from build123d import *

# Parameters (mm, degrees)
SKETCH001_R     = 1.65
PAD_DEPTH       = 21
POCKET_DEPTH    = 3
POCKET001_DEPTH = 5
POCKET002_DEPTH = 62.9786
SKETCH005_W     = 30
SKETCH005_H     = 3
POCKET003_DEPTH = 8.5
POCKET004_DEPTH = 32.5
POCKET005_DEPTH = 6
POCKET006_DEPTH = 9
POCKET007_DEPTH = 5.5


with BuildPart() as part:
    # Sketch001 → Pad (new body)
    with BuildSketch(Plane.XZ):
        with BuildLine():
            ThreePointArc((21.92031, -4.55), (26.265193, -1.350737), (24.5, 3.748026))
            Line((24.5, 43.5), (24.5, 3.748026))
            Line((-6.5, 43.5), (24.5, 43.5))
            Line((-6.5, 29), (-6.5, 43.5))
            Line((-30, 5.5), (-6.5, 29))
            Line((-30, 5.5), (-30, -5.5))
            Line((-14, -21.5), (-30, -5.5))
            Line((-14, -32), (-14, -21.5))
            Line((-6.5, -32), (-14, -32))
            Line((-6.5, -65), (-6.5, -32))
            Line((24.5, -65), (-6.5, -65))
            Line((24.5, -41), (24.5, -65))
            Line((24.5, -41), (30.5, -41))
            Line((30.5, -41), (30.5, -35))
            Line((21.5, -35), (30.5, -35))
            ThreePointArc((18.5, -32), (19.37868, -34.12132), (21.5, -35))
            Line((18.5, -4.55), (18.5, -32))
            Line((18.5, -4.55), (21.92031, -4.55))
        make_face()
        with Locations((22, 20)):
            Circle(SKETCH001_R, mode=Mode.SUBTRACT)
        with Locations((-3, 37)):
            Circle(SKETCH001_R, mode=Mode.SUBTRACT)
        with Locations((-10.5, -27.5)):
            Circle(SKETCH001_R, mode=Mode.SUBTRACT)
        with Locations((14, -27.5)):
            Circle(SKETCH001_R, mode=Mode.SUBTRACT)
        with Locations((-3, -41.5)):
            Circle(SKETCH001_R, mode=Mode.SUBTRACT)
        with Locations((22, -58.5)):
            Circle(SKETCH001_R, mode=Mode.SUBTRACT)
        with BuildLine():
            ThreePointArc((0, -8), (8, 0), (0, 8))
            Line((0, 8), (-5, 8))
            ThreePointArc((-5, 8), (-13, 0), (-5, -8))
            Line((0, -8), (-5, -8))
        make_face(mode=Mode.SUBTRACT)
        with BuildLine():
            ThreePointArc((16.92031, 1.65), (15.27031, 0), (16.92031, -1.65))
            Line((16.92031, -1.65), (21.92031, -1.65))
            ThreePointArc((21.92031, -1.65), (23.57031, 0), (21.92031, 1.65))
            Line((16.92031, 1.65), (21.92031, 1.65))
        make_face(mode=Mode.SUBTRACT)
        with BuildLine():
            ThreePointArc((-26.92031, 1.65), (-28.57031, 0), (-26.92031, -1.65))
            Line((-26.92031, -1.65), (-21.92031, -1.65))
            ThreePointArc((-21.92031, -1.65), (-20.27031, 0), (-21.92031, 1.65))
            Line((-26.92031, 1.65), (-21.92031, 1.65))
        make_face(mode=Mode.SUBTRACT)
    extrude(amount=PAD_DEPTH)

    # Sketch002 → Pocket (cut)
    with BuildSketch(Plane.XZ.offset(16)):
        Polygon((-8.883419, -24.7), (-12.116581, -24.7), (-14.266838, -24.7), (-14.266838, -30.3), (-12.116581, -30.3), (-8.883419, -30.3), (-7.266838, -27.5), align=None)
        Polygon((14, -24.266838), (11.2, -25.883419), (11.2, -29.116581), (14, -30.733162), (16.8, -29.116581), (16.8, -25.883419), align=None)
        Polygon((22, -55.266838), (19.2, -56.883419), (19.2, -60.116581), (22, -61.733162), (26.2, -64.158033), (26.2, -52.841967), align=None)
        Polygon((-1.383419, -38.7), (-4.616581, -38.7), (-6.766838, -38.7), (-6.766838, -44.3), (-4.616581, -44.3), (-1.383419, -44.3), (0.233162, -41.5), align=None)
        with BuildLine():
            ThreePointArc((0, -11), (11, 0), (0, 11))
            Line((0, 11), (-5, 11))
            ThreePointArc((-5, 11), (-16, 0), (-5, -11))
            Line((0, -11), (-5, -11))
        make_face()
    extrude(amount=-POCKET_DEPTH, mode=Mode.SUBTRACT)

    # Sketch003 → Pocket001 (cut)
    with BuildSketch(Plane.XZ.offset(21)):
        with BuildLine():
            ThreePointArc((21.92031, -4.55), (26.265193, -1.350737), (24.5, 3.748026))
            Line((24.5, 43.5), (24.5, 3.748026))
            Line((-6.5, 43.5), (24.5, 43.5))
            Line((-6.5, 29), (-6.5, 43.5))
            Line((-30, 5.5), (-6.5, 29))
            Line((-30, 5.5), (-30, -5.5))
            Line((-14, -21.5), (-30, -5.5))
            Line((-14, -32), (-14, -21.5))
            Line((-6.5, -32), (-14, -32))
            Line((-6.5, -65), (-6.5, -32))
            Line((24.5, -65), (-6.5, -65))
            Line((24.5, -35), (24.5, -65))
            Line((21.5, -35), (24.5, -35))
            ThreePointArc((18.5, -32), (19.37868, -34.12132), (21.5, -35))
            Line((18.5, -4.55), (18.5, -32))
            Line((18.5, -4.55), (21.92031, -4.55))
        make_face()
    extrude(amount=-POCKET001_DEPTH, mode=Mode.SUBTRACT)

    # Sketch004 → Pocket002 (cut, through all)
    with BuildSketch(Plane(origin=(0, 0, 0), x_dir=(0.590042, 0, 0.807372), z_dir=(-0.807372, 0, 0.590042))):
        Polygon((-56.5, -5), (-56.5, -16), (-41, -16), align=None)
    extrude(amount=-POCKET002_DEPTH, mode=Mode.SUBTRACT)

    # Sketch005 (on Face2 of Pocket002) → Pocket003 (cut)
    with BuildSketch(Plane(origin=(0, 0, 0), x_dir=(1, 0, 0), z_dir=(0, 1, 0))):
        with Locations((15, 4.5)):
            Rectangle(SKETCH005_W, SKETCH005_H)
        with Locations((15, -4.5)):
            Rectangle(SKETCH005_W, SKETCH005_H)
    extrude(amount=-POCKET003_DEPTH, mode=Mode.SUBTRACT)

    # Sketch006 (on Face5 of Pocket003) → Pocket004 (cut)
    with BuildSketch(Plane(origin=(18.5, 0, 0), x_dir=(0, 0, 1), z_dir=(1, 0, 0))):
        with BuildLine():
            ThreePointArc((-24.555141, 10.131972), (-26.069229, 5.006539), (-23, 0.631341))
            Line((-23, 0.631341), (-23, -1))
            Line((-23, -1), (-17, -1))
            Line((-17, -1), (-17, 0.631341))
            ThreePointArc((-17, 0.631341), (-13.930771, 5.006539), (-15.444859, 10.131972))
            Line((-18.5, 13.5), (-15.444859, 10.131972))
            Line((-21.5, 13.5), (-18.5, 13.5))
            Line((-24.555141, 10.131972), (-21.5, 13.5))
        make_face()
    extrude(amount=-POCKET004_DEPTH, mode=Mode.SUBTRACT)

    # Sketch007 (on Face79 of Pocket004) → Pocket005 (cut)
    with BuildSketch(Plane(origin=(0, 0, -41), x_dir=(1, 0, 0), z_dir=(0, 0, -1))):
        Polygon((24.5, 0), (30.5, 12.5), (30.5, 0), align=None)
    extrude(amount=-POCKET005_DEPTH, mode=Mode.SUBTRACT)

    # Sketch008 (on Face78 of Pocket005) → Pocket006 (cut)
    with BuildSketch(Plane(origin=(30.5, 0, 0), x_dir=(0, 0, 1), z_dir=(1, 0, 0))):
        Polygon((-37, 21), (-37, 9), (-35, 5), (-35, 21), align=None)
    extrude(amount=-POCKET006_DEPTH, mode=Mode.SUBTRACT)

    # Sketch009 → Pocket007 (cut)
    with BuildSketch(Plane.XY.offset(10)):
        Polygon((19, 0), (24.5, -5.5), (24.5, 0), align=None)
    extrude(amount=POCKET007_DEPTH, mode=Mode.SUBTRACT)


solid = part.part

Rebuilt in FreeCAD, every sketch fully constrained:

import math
import FreeCAD as App
import Part
import Sketcher
from FreeCAD import Vector
Q = App.Units.Quantity

doc = App.newDocument("Part")
params = doc.addObject("Spreadsheet::Sheet", "Params")
for row, (alias, value) in enumerate([
    ("sketch1_radius", "3.000001 mm"),
    ("sketch1_radius2", "8 mm"),
    ("sketch1_diameter", "3.3 mm"),
    ("sketch1_width", "31 mm"),
    ("sketch1_width2", "6 mm"),
    ("pad1_length", "21 mm"),
    ("sketch2_radius", "11 mm"),
    ("sketch2_width", "5 mm"),
    ("sketch2_height", "5.6 mm"),
    ("pocket1_length", "3 mm"),
    ("sketch3_radius", "3.000001 mm"),
    ("sketch3_width", "31 mm"),
    ("sketch3_width2", "3 mm"),
    ("sketch3_height", "11 mm"),
    ("sketch3_height2", "33 mm"),
    ("pocket2_length", "5 mm"),
    ("sketch4_height", "11 mm"),
    ("sketch4_width", "15.5 mm"),
    ("sketch5_width", "30 mm"),
    ("sketch5_height", "3 mm"),
    ("pocket4_length", "8.5 mm"),
    ("sketch6_height", "6 mm"),
    ("sketch6_height2", "3 mm"),
    ("sketch6_radius", "6.149999 mm"),
    ("pocket5_length", "32.5 mm"),
    ("sketch7_width", "6 mm"),
    ("sketch7_height", "12.5 mm"),
    ("pocket6_length", "6 mm"),
    ("sketch8_width", "12 mm"),
    ("sketch8_width2", "16 mm"),
    ("sketch8_height", "2 mm"),
    ("pocket7_length", "9 mm"),
    ("sketch9_width", "5.5 mm"),
    ("pocket8_length", "5.5 mm"),
], start=1):
    params.set(f"A{row}", alias)
    params.set(f"B{row}", "=" + value)
    params.setAlias(f"B{row}", alias)

body = doc.addObject("PartDesign::Body", "Body")

# Sketch on XZ plane
sketch1 = body.newObject("Sketcher::SketchObject", "Sketch")
sketch1.AttachmentSupport = (doc.getObject("XZ_Plane"), [""])
sketch1.MapMode = "FlatFace"
sketch1.addGeometry(Part.ArcOfCircle(Part.Circle(Vector(21.9, 0, 0), Vector(0, 0, 1), 4.6), math.radians(-90), math.radians(55)), False)
sketch1.addGeometry(Part.LineSegment(Vector(24.5, 3.7, 0), Vector(24.5, 43.5, 0)), False)
sketch1.addGeometry(Part.LineSegment(Vector(24.5, 43.5, 0), Vector(-6.5, 43.5, 0)), False)
sketch1.addGeometry(Part.LineSegment(Vector(-6.5, 43.5, 0), Vector(-6.5, 29, 0)), False)
sketch1.addGeometry(Part.LineSegment(Vector(-6.5, 29, 0), Vector(-30, 5.5, 0)), False)
sketch1.addGeometry(Part.LineSegment(Vector(-30, 5.5, 0), Vector(-30, -5.5, 0)), False)
sketch1.addGeometry(Part.LineSegment(Vector(-30, -5.5, 0), Vector(-14, -21.5, 0)), False)
sketch1.addGeometry(Part.LineSegment(Vector(-14, -21.5, 0), Vector(-14, -32, 0)), False)
sketch1.addGeometry(Part.LineSegment(Vector(-14, -32, 0), Vector(-6.5, -32, 0)), False)
sketch1.addGeometry(Part.LineSegment(Vector(-6.5, -32, 0), Vector(-6.5, -65, 0)), False)
sketch1.addGeometry(Part.LineSegment(Vector(-6.5, -65, 0), Vector(24.5, -65, 0)), False)
sketch1.addGeometry(Part.LineSegment(Vector(24.5, -65, 0), Vector(24.5, -41, 0)), False)
sketch1.addGeometry(Part.LineSegment(Vector(24.5, -41, 0), Vector(30.5, -41, 0)), False)
sketch1.addGeometry(Part.LineSegment(Vector(30.5, -41, 0), Vector(30.5, -35, 0)), False)
sketch1.addGeometry(Part.LineSegment(Vector(30.5, -35, 0), Vector(21.5, -35, 0)), False)
sketch1.addGeometry(Part.ArcOfCircle(Part.Circle(Vector(21.5, -32, 0), Vector(0, 0, 1), 3), math.radians(-180), math.radians(-90)), False)
sketch1.addGeometry(Part.LineSegment(Vector(18.5, -32, 0), Vector(18.5, -4.5, 0)), False)
sketch1.addGeometry(Part.LineSegment(Vector(18.5, -4.5, 0), Vector(21.9, -4.5, 0)), False)
sketch1.addGeometry(Part.Circle(Vector(-3, -41.5, 0), Vector(0, 0, 1), 1.6), False)
sketch1.addGeometry(Part.Circle(Vector(-10.5, -27.5, 0), Vector(0, 0, 1), 1.6), False)
sketch1.addGeometry(Part.Circle(Vector(22, -58.5, 0), Vector(0, 0, 1), 1.6), False)
sketch1.addGeometry(Part.Circle(Vector(14, -27.5, 0), Vector(0, 0, 1), 1.6), False)
sketch1.addGeometry(Part.ArcOfCircle(Part.Circle(Vector(-26.9, 0, 0), Vector(0, 0, 1), 1.6), math.radians(90), math.radians(270)), False)
sketch1.addGeometry(Part.LineSegment(Vector(-26.9, 1.6, 0), Vector(-21.9, 1.6, 0)), False)
sketch1.addGeometry(Part.ArcOfCircle(Part.Circle(Vector(-21.9, 0, 0), Vector(0, 0, 1), 1.6), math.radians(-90), math.radians(90)), False)
sketch1.addGeometry(Part.LineSegment(Vector(-21.9, -1.6, 0), Vector(-26.9, -1.6, 0)), False)
sketch1.addGeometry(Part.ArcOfCircle(Part.Circle(Vector(0, 0, 0), Vector(0, 0, 1), 8), math.radians(-90), math.radians(90)), False)
sketch1.addGeometry(Part.LineSegment(Vector(0, -8, 0), Vector(-5, -8, 0)), False)
sketch1.addGeometry(Part.ArcOfCircle(Part.Circle(Vector(-5, 0, 0), Vector(0, 0, 1), 8), math.radians(90), math.radians(270)), False)
sketch1.addGeometry(Part.LineSegment(Vector(-5, 8, 0), Vector(0, 8, 0)), False)
sketch1.addGeometry(Part.Circle(Vector(-3, 37, 0), Vector(0, 0, 1), 1.6), False)
sketch1.addGeometry(Part.ArcOfCircle(Part.Circle(Vector(16.9, 0, 0), Vector(0, 0, 1), 1.6), math.radians(90), math.radians(270)), False)
sketch1.addGeometry(Part.LineSegment(Vector(16.9, 1.6, 0), Vector(21.9, 1.6, 0)), False)
sketch1.addGeometry(Part.ArcOfCircle(Part.Circle(Vector(21.9, 0, 0), Vector(0, 0, 1), 1.6), math.radians(-90), math.radians(90)), False)
sketch1.addGeometry(Part.LineSegment(Vector(21.9, -1.6, 0), Vector(16.9, -1.6, 0)), False)
sketch1.addGeometry(Part.Circle(Vector(22, 20, 0), Vector(0, 0, 1), 1.6), False)
sketch1.addConstraint(Sketcher.Constraint("Coincident", 0, 2, 1, 1))
sketch1.addConstraint(Sketcher.Constraint("Coincident", 1, 2, 2, 1))
sketch1.addConstraint(Sketcher.Constraint("Coincident", 2, 2, 3, 1))
sketch1.addConstraint(Sketcher.Constraint("Coincident", 3, 2, 4, 1))
sketch1.addConstraint(Sketcher.Constraint("Coincident", 4, 2, 5, 1))
sketch1.addConstraint(Sketcher.Constraint("Coincident", 5, 2, 6, 1))
sketch1.addConstraint(Sketcher.Constraint("Coincident", 6, 2, 7, 1))
sketch1.addConstraint(Sketcher.Constraint("Coincident", 7, 2, 8, 1))
sketch1.addConstraint(Sketcher.Constraint("Coincident", 8, 2, 9, 1))
sketch1.addConstraint(Sketcher.Constraint("Coincident", 9, 2, 10, 1))
sketch1.addConstraint(Sketcher.Constraint("Coincident", 10, 2, 11, 1))
sketch1.addConstraint(Sketcher.Constraint("Coincident", 11, 2, 12, 1))
sketch1.addConstraint(Sketcher.Constraint("Coincident", 12, 2, 13, 1))
sketch1.addConstraint(Sketcher.Constraint("Coincident", 13, 2, 14, 1))
sketch1.addConstraint(Sketcher.Constraint("Tangent", 14, 2, 15, 2))
sketch1.addConstraint(Sketcher.Constraint("Tangent", 15, 1, 16, 1))
sketch1.addConstraint(Sketcher.Constraint("Coincident", 16, 2, 17, 1))
sketch1.addConstraint(Sketcher.Constraint("Tangent", 17, 2, 0, 1))
sketch1.addConstraint(Sketcher.Constraint("Tangent", 22, 1, 23, 1))
sketch1.addConstraint(Sketcher.Constraint("Tangent", 23, 2, 24, 2))
sketch1.addConstraint(Sketcher.Constraint("Tangent", 24, 1, 25, 1))
sketch1.addConstraint(Sketcher.Constraint("Tangent", 25, 2, 22, 2))
sketch1.addConstraint(Sketcher.Constraint("Tangent", 26, 1, 27, 1))
sketch1.addConstraint(Sketcher.Constraint("Tangent", 27, 2, 28, 2))
sketch1.addConstraint(Sketcher.Constraint("Tangent", 28, 1, 29, 1))
sketch1.addConstraint(Sketcher.Constraint("Tangent", 29, 2, 26, 2))
sketch1.addConstraint(Sketcher.Constraint("Tangent", 31, 1, 32, 1))
sketch1.addConstraint(Sketcher.Constraint("Tangent", 32, 2, 33, 2))
sketch1.addConstraint(Sketcher.Constraint("Tangent", 33, 1, 34, 1))
sketch1.addConstraint(Sketcher.Constraint("Tangent", 34, 2, 31, 2))
sketch1.addConstraint(Sketcher.Constraint("Vertical", 1))
sketch1.addConstraint(Sketcher.Constraint("Horizontal", 2))
sketch1.addConstraint(Sketcher.Constraint("Vertical", 3))
sketch1.addConstraint(Sketcher.Constraint("Vertical", 5))
sketch1.addConstraint(Sketcher.Constraint("Vertical", 7))
sketch1.addConstraint(Sketcher.Constraint("Horizontal", 8))
sketch1.addConstraint(Sketcher.Constraint("Vertical", 9))
sketch1.addConstraint(Sketcher.Constraint("Horizontal", 10))
sketch1.addConstraint(Sketcher.Constraint("Vertical", 11))
sketch1.addConstraint(Sketcher.Constraint("Horizontal", 12))
sketch1.addConstraint(Sketcher.Constraint("Vertical", 13))
sketch1.addConstraint(Sketcher.Constraint("Horizontal", 14))
sketch1.addConstraint(Sketcher.Constraint("Vertical", 16))
sketch1.addConstraint(Sketcher.Constraint("Horizontal", 17))
sketch1.addConstraint(Sketcher.Constraint("Horizontal", 23))
sketch1.addConstraint(Sketcher.Constraint("Horizontal", 25))
sketch1.addConstraint(Sketcher.Constraint("Horizontal", 27))
sketch1.addConstraint(Sketcher.Constraint("Horizontal", 29))
sketch1.addConstraint(Sketcher.Constraint("Horizontal", 32))
sketch1.addConstraint(Sketcher.Constraint("Horizontal", 34))
sketch1.addConstraint(Sketcher.Constraint("Coincident", 26, 3, -1, 1))
sketch1.addConstraint(Sketcher.Constraint("Coincident", 33, 3, 0, 3))
sketch1.addConstraint(Sketcher.Constraint("Equal", 18, 19))
sketch1.addConstraint(Sketcher.Constraint("Equal", 19, 20))
sketch1.addConstraint(Sketcher.Constraint("Equal", 20, 21))
sketch1.addConstraint(Sketcher.Constraint("Equal", 21, 22))
sketch1.addConstraint(Sketcher.Constraint("Equal", 24, 30))
sketch1.addConstraint(Sketcher.Constraint("Equal", 30, 31))
sketch1.addConstraint(Sketcher.Constraint("Equal", 33, 35))
sketch1.addConstraint(Sketcher.Constraint("Symmetric", 0, 3, 24, 3, -1, 1))
sketch1.addConstraint(Sketcher.Constraint("PointOnObject", 0, 3, -1))
sketch1.addConstraint(Sketcher.Constraint("Perpendicular", 4, 6))
sketch1.addConstraint(Sketcher.Constraint("Horizontal", 19, 3, 21, 3))
sketch1.addConstraint(Sketcher.Constraint("Horizontal", 15, 3, 7, 2))
sketch1.addConstraint(Sketcher.Constraint("Vertical", 18, 3, 30, 3))
sketch1.addConstraint(Sketcher.Constraint("Vertical", 20, 3, 35, 3))
sketch1.addConstraint(Sketcher.Constraint("Vertical", 3, 2, 8, 2))
sketch1.addConstraint(Sketcher.Constraint("Vertical", 1, 2, 10, 2))
sketch1.addConstraint(Sketcher.Constraint("Equal", 25, 27))
sketch1.addConstraint(Sketcher.Constraint("Equal", 29, 32))
sketch1.addConstraint(Sketcher.Constraint("Equal", 12, 13))
sketch1.addConstraint(Sketcher.Constraint("Radius", 15, Q("3.000001 mm")))
sketch1.addConstraint(Sketcher.Constraint("Radius", 26, Q("8 mm")))
sketch1.addConstraint(Sketcher.Constraint("Diameter", 18, Q("3.3 mm")))
sketch1.addConstraint(Sketcher.Constraint("DistanceX", 2, 2, 2, 1, Q("31 mm")))
sketch1.addConstraint(Sketcher.Constraint("DistanceX", 12, 1, 12, 2, Q("6 mm")))
sketch1.addConstraint(Sketcher.Constraint("DistanceX", 14, 2, 14, 1, Q("9 mm")))
sketch1.addConstraint(Sketcher.Constraint("DistanceX", 23, 1, 23, 2, Q("5 mm")))
sketch1.addConstraint(Sketcher.Constraint("DistanceY", 5, 2, 5, 1, Q("11 mm")))
sketch1.addConstraint(Sketcher.Constraint("DistanceY", 9, 2, 9, 1, Q("33 mm")))
sketch1.addConstraint(Sketcher.Constraint("Angle", 4, Q("-135 deg")))
sketch1.addConstraint(Sketcher.Constraint("Radius", 0, Q("4.55 mm")))
sketch1.addConstraint(Sketcher.Constraint("DistanceX", 8, 1, 8, 2, Q("7.5 mm")))
sketch1.addConstraint(Sketcher.Constraint("DistanceY", 3, 2, 3, 1, Q("14.5 mm")))
sketch1.addConstraint(Sketcher.Constraint("DistanceY", 7, 2, 7, 1, Q("10.5 mm")))
sketch1.addConstraint(Sketcher.Constraint("DistanceY", 15, 3, -1, 1, Q("31.999999 mm")))
sketch1.addConstraint(Sketcher.Constraint("DistanceX", 18, 3, -1, 1, Q("3 mm")))
sketch1.addConstraint(Sketcher.Constraint("DistanceX", -1, 1, 20, 3, Q("22 mm")))
sketch1.addConstraint(Sketcher.Constraint("DistanceX", -1, 1, 21, 3, Q("14 mm")))
sketch1.addConstraint(Sketcher.Constraint("DistanceY", -1, 1, 30, 3, Q("37 mm")))
sketch1.addConstraint(Sketcher.Constraint("DistanceY", -1, 1, 35, 3, Q("20 mm")))
sketch1.addConstraint(Sketcher.Constraint("DistanceY", -1, 1, 3, 2, Q("29 mm")))
sketch1.addConstraint(Sketcher.Constraint("DistanceX", 4, 2, -1, 1, Q("30 mm")))
sketch1.addConstraint(Sketcher.Constraint("DistanceY", 18, 3, 19, 3, Q("14 mm")))
sketch1.addConstraint(Sketcher.Constraint("DistanceX", 19, 3, 15, 3, Q("32.000001 mm")))
sketch1.addConstraint(Sketcher.Constraint("DistanceY", 20, 3, 18, 3, Q("17 mm")))
sketch1.addConstraint(Sketcher.Constraint("DistanceY", 19, 3, 5, 2, Q("22 mm")))
sketch1.addConstraint(Sketcher.Constraint("DistanceX", 17, 1, 17, 2, Q("3.42031 mm")))
sketch1.setExpression("Constraints[71]", "Params.sketch1_radius")
sketch1.setExpression("Constraints[72]", "Params.sketch1_radius2")
sketch1.setExpression("Constraints[73]", "Params.sketch1_diameter")
sketch1.setExpression("Constraints[74]", "Params.sketch1_width")
sketch1.setExpression("Constraints[75]", "Params.sketch1_width2")
pad1 = body.newObject("PartDesign::Pad", "Pad")
pad1.Profile = sketch1
pad1.setExpression("Length", "Params.pad1_length")

# Sketch on XZ plane
sketch2 = body.newObject("Sketcher::SketchObject", "Sketch001")
sketch2.AttachmentSupport = (doc.getObject("XZ_Plane"), [""])
sketch2.MapMode = "FlatFace"
sketch2.AttachmentOffset = App.Placement(Vector(0, 0, 16), App.Rotation())
sketch2.addGeometry(Part.LineSegment(Vector(-8.9, -24.7, 0), Vector(-14.3, -24.7, 0)), False)
sketch2.addGeometry(Part.LineSegment(Vector(-14.3, -24.7, 0), Vector(-14.3, -30.3, 0)), False)
sketch2.addGeometry(Part.LineSegment(Vector(-14.3, -30.3, 0), Vector(-8.9, -30.3, 0)), False)
sketch2.addGeometry(Part.LineSegment(Vector(-8.9, -30.3, 0), Vector(-7.3, -27.5, 0)), False)
sketch2.addGeometry(Part.LineSegment(Vector(-7.3, -27.5, 0), Vector(-8.9, -24.7, 0)), False)
sketch2.addGeometry(Part.LineSegment(Vector(14, -24.3, 0), Vector(11.2, -25.9, 0)), False)
sketch2.addGeometry(Part.LineSegment(Vector(11.2, -25.9, 0), Vector(11.2, -29.1, 0)), False)
sketch2.addGeometry(Part.LineSegment(Vector(11.2, -29.1, 0), Vector(14, -30.7, 0)), False)
sketch2.addGeometry(Part.LineSegment(Vector(14, -30.7, 0), Vector(16.8, -29.1, 0)), False)
sketch2.addGeometry(Part.LineSegment(Vector(16.8, -29.1, 0), Vector(16.8, -25.9, 0)), False)
sketch2.addGeometry(Part.LineSegment(Vector(16.8, -25.9, 0), Vector(14, -24.3, 0)), False)
sketch2.addGeometry(Part.LineSegment(Vector(22, -55.3, 0), Vector(19.2, -56.9, 0)), False)
sketch2.addGeometry(Part.LineSegment(Vector(19.2, -56.9, 0), Vector(19.2, -60.1, 0)), False)
sketch2.addGeometry(Part.LineSegment(Vector(19.2, -60.1, 0), Vector(22, -61.7, 0)), False)
sketch2.addGeometry(Part.LineSegment(Vector(22, -61.7, 0), Vector(26.2, -64.2, 0)), False)
sketch2.addGeometry(Part.LineSegment(Vector(26.2, -64.2, 0), Vector(26.2, -52.8, 0)), False)
sketch2.addGeometry(Part.LineSegment(Vector(26.2, -52.8, 0), Vector(22, -55.3, 0)), False)
sketch2.addGeometry(Part.LineSegment(Vector(-1.4, -38.7, 0), Vector(-6.8, -38.7, 0)), False)
sketch2.addGeometry(Part.LineSegment(Vector(-6.8, -38.7, 0), Vector(-6.8, -44.3, 0)), False)
sketch2.addGeometry(Part.LineSegment(Vector(-6.8, -44.3, 0), Vector(-1.4, -44.3, 0)), False)
sketch2.addGeometry(Part.LineSegment(Vector(-1.4, -44.3, 0), Vector(0.2, -41.5, 0)), False)
sketch2.addGeometry(Part.LineSegment(Vector(0.2, -41.5, 0), Vector(-1.4, -38.7, 0)), False)
sketch2.addGeometry(Part.ArcOfCircle(Part.Circle(Vector(0, 0, 0), Vector(0, 0, 1), 11), math.radians(-90), math.radians(90)), False)
sketch2.addGeometry(Part.LineSegment(Vector(0, 11, 0), Vector(-5, 11, 0)), False)
sketch2.addGeometry(Part.ArcOfCircle(Part.Circle(Vector(-5, 0, 0), Vector(0, 0, 1), 11), math.radians(90), math.radians(270)), False)
sketch2.addGeometry(Part.LineSegment(Vector(-5, -11, 0), Vector(0, -11, 0)), False)
sketch2.addConstraint(Sketcher.Constraint("Coincident", 0, 2, 1, 1))
sketch2.addConstraint(Sketcher.Constraint("Coincident", 1, 2, 2, 1))
sketch2.addConstraint(Sketcher.Constraint("Coincident", 2, 2, 3, 1))
sketch2.addConstraint(Sketcher.Constraint("Coincident", 3, 2, 4, 1))
sketch2.addConstraint(Sketcher.Constraint("Coincident", 4, 2, 0, 1))
sketch2.addConstraint(Sketcher.Constraint("Coincident", 5, 2, 6, 1))
sketch2.addConstraint(Sketcher.Constraint("Coincident", 6, 2, 7, 1))
sketch2.addConstraint(Sketcher.Constraint("Coincident", 7, 2, 8, 1))
sketch2.addConstraint(Sketcher.Constraint("Coincident", 8, 2, 9, 1))
sketch2.addConstraint(Sketcher.Constraint("Coincident", 9, 2, 10, 1))
sketch2.addConstraint(Sketcher.Constraint("Coincident", 10, 2, 5, 1))
sketch2.addConstraint(Sketcher.Constraint("Coincident", 11, 2, 12, 1))
sketch2.addConstraint(Sketcher.Constraint("Coincident", 12, 2, 13, 1))
sketch2.addConstraint(Sketcher.Constraint("Coincident", 13, 2, 14, 1))
sketch2.addConstraint(Sketcher.Constraint("Coincident", 14, 2, 15, 1))
sketch2.addConstraint(Sketcher.Constraint("Coincident", 15, 2, 16, 1))
sketch2.addConstraint(Sketcher.Constraint("Coincident", 16, 2, 11, 1))
sketch2.addConstraint(Sketcher.Constraint("Coincident", 17, 2, 18, 1))
sketch2.addConstraint(Sketcher.Constraint("Coincident", 18, 2, 19, 1))
sketch2.addConstraint(Sketcher.Constraint("Coincident", 19, 2, 20, 1))
sketch2.addConstraint(Sketcher.Constraint("Coincident", 20, 2, 21, 1))
sketch2.addConstraint(Sketcher.Constraint("Coincident", 21, 2, 17, 1))
sketch2.addConstraint(Sketcher.Constraint("Tangent", 22, 2, 23, 1))
sketch2.addConstraint(Sketcher.Constraint("Tangent", 23, 2, 24, 1))
sketch2.addConstraint(Sketcher.Constraint("Tangent", 24, 2, 25, 1))
sketch2.addConstraint(Sketcher.Constraint("Tangent", 25, 2, 22, 1))
sketch2.addConstraint(Sketcher.Constraint("Horizontal", 0))
sketch2.addConstraint(Sketcher.Constraint("Vertical", 1))
sketch2.addConstraint(Sketcher.Constraint("Horizontal", 2))
sketch2.addConstraint(Sketcher.Constraint("Vertical", 6))
sketch2.addConstraint(Sketcher.Constraint("Vertical", 9))
sketch2.addConstraint(Sketcher.Constraint("Vertical", 12))
sketch2.addConstraint(Sketcher.Constraint("Vertical", 15))
sketch2.addConstraint(Sketcher.Constraint("Horizontal", 17))
sketch2.addConstraint(Sketcher.Constraint("Vertical", 18))
sketch2.addConstraint(Sketcher.Constraint("Horizontal", 19))
sketch2.addConstraint(Sketcher.Constraint("Horizontal", 23))
sketch2.addConstraint(Sketcher.Constraint("Horizontal", 25))
sketch2.addConstraint(Sketcher.Constraint("Coincident", 22, 3, -1, 1))
sketch2.addConstraint(Sketcher.Constraint("Perpendicular", 4, 5))
sketch2.addConstraint(Sketcher.Constraint("Perpendicular", 3, 7))
sketch2.addConstraint(Sketcher.Constraint("Parallel", 5, 8))
sketch2.addConstraint(Sketcher.Constraint("Parallel", 7, 10))
sketch2.addConstraint(Sketcher.Constraint("Parallel", 8, 11))
sketch2.addConstraint(Sketcher.Constraint("Parallel", 10, 13))
sketch2.addConstraint(Sketcher.Constraint("Parallel", 13, 14))
sketch2.addConstraint(Sketcher.Constraint("Parallel", 11, 16))
sketch2.addConstraint(Sketcher.Constraint("Perpendicular", 14, 20))
sketch2.addConstraint(Sketcher.Constraint("Perpendicular", 16, 21))
sketch2.addConstraint(Sketcher.Constraint("Horizontal", 6, 2, 8, 2))
sketch2.addConstraint(Sketcher.Constraint("Horizontal", 5, 2, 9, 2))
sketch2.addConstraint(Sketcher.Constraint("Vertical", 2, 2, 4, 2))
sketch2.addConstraint(Sketcher.Constraint("Vertical", 7, 2, 10, 2))
sketch2.addConstraint(Sketcher.Constraint("Vertical", 13, 2, 16, 2))
sketch2.addConstraint(Sketcher.Constraint("Vertical", 19, 2, 21, 2))
sketch2.addConstraint(Sketcher.Constraint("Equal", 2, 17))
sketch2.addConstraint(Sketcher.Constraint("Equal", 9, 12))
sketch2.addConstraint(Sketcher.Constraint("Equal", 1, 18))
sketch2.addConstraint(Sketcher.Constraint("Equal", 4, 5))
sketch2.addConstraint(Sketcher.Constraint("Equal", 10, 11))
sketch2.addConstraint(Sketcher.Constraint("Radius", 22, Q("11 mm")))
sketch2.addConstraint(Sketcher.Constraint("DistanceX", 23, 2, 23, 1, Q("5 mm")))
sketch2.addConstraint(Sketcher.Constraint("Angle", 3, Q("59.999996 deg")))
sketch2.addConstraint(Sketcher.Constraint("DistanceY", 1, 2, 1, 1, Q("5.6 mm")))
sketch2.addConstraint(Sketcher.Constraint("DistanceX", -1, 1, 7, 2, Q("14 mm")))
sketch2.addConstraint(Sketcher.Constraint("DistanceX", -1, 1, 13, 2, Q("22 mm")))
sketch2.addConstraint(Sketcher.Constraint("DistanceX", 0, 2, 3, 2, Q("7 mm")))
sketch2.addConstraint(Sketcher.Constraint("DistanceY", 11, 2, 9, 2, Q("31 mm")))
sketch2.addConstraint(Sketcher.Constraint("DistanceX", 12, 2, 14, 2, Q("7 mm")))
sketch2.addConstraint(Sketcher.Constraint("DistanceY", 17, 2, 4, 2, Q("14 mm")))
sketch2.addConstraint(Sketcher.Constraint("DistanceY", 0, 2, -1, 1, Q("24.7 mm")))
sketch2.addConstraint(Sketcher.Constraint("DistanceX", 3, 2, 17, 2, Q("0.5 mm")))
sketch2.addConstraint(Sketcher.Constraint("DistanceY", 12, 2, 12, 1, Q("3.233162 mm")))
sketch2.addConstraint(Sketcher.Constraint("DistanceX", 2, 2, -1, 1, Q("8.883419 mm")))
sketch2.addConstraint(Sketcher.Constraint("DistanceY", 5, 2, -1, 1, Q("25.883419 mm")))
sketch2.setExpression("Constraints[60]", "Params.sketch2_radius")
sketch2.setExpression("Constraints[61]", "Params.sketch2_width")
sketch2.setExpression("Constraints[63]", "Params.sketch2_height")
pocket1 = body.newObject("PartDesign::Pocket", "Pocket")
pocket1.Profile = sketch2
pocket1.setExpression("Length", "Params.pocket1_length")

# Sketch on XZ plane
sketch3 = body.newObject("Sketcher::SketchObject", "Sketch002")
sketch3.AttachmentSupport = (doc.getObject("XZ_Plane"), [""])
sketch3.MapMode = "FlatFace"
sketch3.AttachmentOffset = App.Placement(Vector(0, 0, 21), App.Rotation())
sketch3.addGeometry(Part.ArcOfCircle(Part.Circle(Vector(21.9, 0, 0), Vector(0, 0, 1), 4.6), math.radians(-90), math.radians(55)), False)
sketch3.addGeometry(Part.LineSegment(Vector(24.5, 3.7, 0), Vector(24.5, 43.5, 0)), False)
sketch3.addGeometry(Part.LineSegment(Vector(24.5, 43.5, 0), Vector(-6.5, 43.5, 0)), False)
sketch3.addGeometry(Part.LineSegment(Vector(-6.5, 43.5, 0), Vector(-6.5, 29, 0)), False)
sketch3.addGeometry(Part.LineSegment(Vector(-6.5, 29, 0), Vector(-30, 5.5, 0)), False)
sketch3.addGeometry(Part.LineSegment(Vector(-30, 5.5, 0), Vector(-30, -5.5, 0)), False)
sketch3.addGeometry(Part.LineSegment(Vector(-30, -5.5, 0), Vector(-14, -21.5, 0)), False)
sketch3.addGeometry(Part.LineSegment(Vector(-14, -21.5, 0), Vector(-14, -32, 0)), False)
sketch3.addGeometry(Part.LineSegment(Vector(-14, -32, 0), Vector(-6.5, -32, 0)), False)
sketch3.addGeometry(Part.LineSegment(Vector(-6.5, -32, 0), Vector(-6.5, -65, 0)), False)
sketch3.addGeometry(Part.LineSegment(Vector(-6.5, -65, 0), Vector(24.5, -65, 0)), False)
sketch3.addGeometry(Part.LineSegment(Vector(24.5, -65, 0), Vector(24.5, -35, 0)), False)
sketch3.addGeometry(Part.LineSegment(Vector(24.5, -35, 0), Vector(21.5, -35, 0)), False)
sketch3.addGeometry(Part.ArcOfCircle(Part.Circle(Vector(21.5, -32, 0), Vector(0, 0, 1), 3), math.radians(-180), math.radians(-90)), False)
sketch3.addGeometry(Part.LineSegment(Vector(18.5, -32, 0), Vector(18.5, -4.5, 0)), False)
sketch3.addGeometry(Part.LineSegment(Vector(18.5, -4.5, 0), Vector(21.9, -4.5, 0)), False)
sketch3.addConstraint(Sketcher.Constraint("Coincident", 0, 2, 1, 1))
sketch3.addConstraint(Sketcher.Constraint("Coincident", 1, 2, 2, 1))
sketch3.addConstraint(Sketcher.Constraint("Coincident", 2, 2, 3, 1))
sketch3.addConstraint(Sketcher.Constraint("Coincident", 3, 2, 4, 1))
sketch3.addConstraint(Sketcher.Constraint("Coincident", 4, 2, 5, 1))
sketch3.addConstraint(Sketcher.Constraint("Coincident", 5, 2, 6, 1))
sketch3.addConstraint(Sketcher.Constraint("Coincident", 6, 2, 7, 1))
sketch3.addConstraint(Sketcher.Constraint("Coincident", 7, 2, 8, 1))
sketch3.addConstraint(Sketcher.Constraint("Coincident", 8, 2, 9, 1))
sketch3.addConstraint(Sketcher.Constraint("Coincident", 9, 2, 10, 1))
sketch3.addConstraint(Sketcher.Constraint("Coincident", 10, 2, 11, 1))
sketch3.addConstraint(Sketcher.Constraint("Coincident", 11, 2, 12, 1))
sketch3.addConstraint(Sketcher.Constraint("Tangent", 12, 2, 13, 2))
sketch3.addConstraint(Sketcher.Constraint("Tangent", 13, 1, 14, 1))
sketch3.addConstraint(Sketcher.Constraint("Coincident", 14, 2, 15, 1))
sketch3.addConstraint(Sketcher.Constraint("Tangent", 15, 2, 0, 1))
sketch3.addConstraint(Sketcher.Constraint("Vertical", 1))
sketch3.addConstraint(Sketcher.Constraint("Horizontal", 2))
sketch3.addConstraint(Sketcher.Constraint("Vertical", 3))
sketch3.addConstraint(Sketcher.Constraint("Vertical", 5))
sketch3.addConstraint(Sketcher.Constraint("Vertical", 7))
sketch3.addConstraint(Sketcher.Constraint("Horizontal", 8))
sketch3.addConstraint(Sketcher.Constraint("Vertical", 9))
sketch3.addConstraint(Sketcher.Constraint("Horizontal", 10))
sketch3.addConstraint(Sketcher.Constraint("Vertical", 11))
sketch3.addConstraint(Sketcher.Constraint("Horizontal", 12))
sketch3.addConstraint(Sketcher.Constraint("Vertical", 14))
sketch3.addConstraint(Sketcher.Constraint("Horizontal", 15))
sketch3.addConstraint(Sketcher.Constraint("PointOnObject", 0, 3, -1))
sketch3.addConstraint(Sketcher.Constraint("Perpendicular", 4, 6))
sketch3.addConstraint(Sketcher.Constraint("Horizontal", 13, 3, 7, 2))
sketch3.addConstraint(Sketcher.Constraint("Vertical", 3, 2, 8, 2))
sketch3.addConstraint(Sketcher.Constraint("Vertical", 1, 2, 10, 2))
sketch3.addConstraint(Sketcher.Constraint("Radius", 13, Q("3.000001 mm")))
sketch3.addConstraint(Sketcher.Constraint("DistanceX", 2, 2, 2, 1, Q("31 mm")))
sketch3.addConstraint(Sketcher.Constraint("DistanceX", 12, 2, 12, 1, Q("3 mm")))
sketch3.addConstraint(Sketcher.Constraint("DistanceY", 5, 2, 5, 1, Q("11 mm")))
sketch3.addConstraint(Sketcher.Constraint("DistanceY", 9, 2, 9, 1, Q("33 mm")))
sketch3.addConstraint(Sketcher.Constraint("Angle", 4, Q("-135 deg")))
sketch3.addConstraint(Sketcher.Constraint("Radius", 0, Q("4.55 mm")))
sketch3.addConstraint(Sketcher.Constraint("DistanceX", 8, 1, 8, 2, Q("7.5 mm")))
sketch3.addConstraint(Sketcher.Constraint("DistanceY", 3, 2, 3, 1, Q("14.5 mm")))
sketch3.addConstraint(Sketcher.Constraint("DistanceY", 7, 2, 7, 1, Q("10.5 mm")))
sketch3.addConstraint(Sketcher.Constraint("DistanceY", 13, 3, -1, 1, Q("31.999999 mm")))
sketch3.addConstraint(Sketcher.Constraint("DistanceY", -1, 1, 3, 2, Q("29 mm")))
sketch3.addConstraint(Sketcher.Constraint("DistanceX", 4, 2, -1, 1, Q("30 mm")))
sketch3.addConstraint(Sketcher.Constraint("DistanceX", 15, 1, 15, 2, Q("3.42031 mm")))
sketch3.setExpression("Constraints[33]", "Params.sketch3_radius")
sketch3.setExpression("Constraints[34]", "Params.sketch3_width")
sketch3.setExpression("Constraints[35]", "Params.sketch3_width2")
sketch3.setExpression("Constraints[36]", "Params.sketch3_height")
sketch3.setExpression("Constraints[37]", "Params.sketch3_height2")
pocket2 = body.newObject("PartDesign::Pocket", "Pocket001")
pocket2.Profile = sketch3
pocket2.setExpression("Length", "Params.pocket2_length")

# Sketch on an angled plane
sketch4 = body.newObject("Sketcher::SketchObject", "Sketch003")
sketch4.Placement = App.Placement(Vector(0, 0, 0), App.Rotation(Vector(0.590042263, 0, 0.80737236), Vector(0, 1, 0), Vector(-0.80737236, 0, 0.590042263), "ZXY"))
sketch4.addGeometry(Part.LineSegment(Vector(-56, -5, 0), Vector(-56, -16, 0)), False)
sketch4.addGeometry(Part.LineSegment(Vector(-56, -16, 0), Vector(-41, -16, 0)), False)
sketch4.addGeometry(Part.LineSegment(Vector(-41, -16, 0), Vector(-56, -5, 0)), False)
sketch4.addConstraint(Sketcher.Constraint("Coincident", 0, 2, 1, 1))
sketch4.addConstraint(Sketcher.Constraint("Coincident", 1, 2, 2, 1))
sketch4.addConstraint(Sketcher.Constraint("Coincident", 2, 2, 0, 1))
sketch4.addConstraint(Sketcher.Constraint("Vertical", 0))
sketch4.addConstraint(Sketcher.Constraint("Horizontal", 1))
sketch4.addConstraint(Sketcher.Constraint("DistanceY", 0, 2, 0, 1, Q("11 mm")))
sketch4.addConstraint(Sketcher.Constraint("DistanceX", 1, 1, 1, 2, Q("15.5 mm")))
sketch4.addConstraint(Sketcher.Constraint("DistanceY", 0, 2, -1, 1, Q("16 mm")))
sketch4.addConstraint(Sketcher.Constraint("DistanceX", 1, 2, -1, 1, Q("41 mm")))
sketch4.setExpression("Constraints[5]", "Params.sketch4_height")
sketch4.setExpression("Constraints[6]", "Params.sketch4_width")
pocket3 = body.newObject("PartDesign::Pocket", "Pocket002")
pocket3.Profile = sketch4
pocket3.Type = "ThroughAll"

# Sketch on XZ plane
sketch5 = body.newObject("Sketcher::SketchObject", "Sketch004")
sketch5.AttachmentSupport = (doc.getObject("XZ_Plane"), [""])
sketch5.MapMode = "FlatFace"
sketch5.addGeometry(Part.LineSegment(Vector(0, -6, 0), Vector(0, -3, 0)), False)
sketch5.addGeometry(Part.LineSegment(Vector(0, -3, 0), Vector(30, -3, 0)), False)
sketch5.addGeometry(Part.LineSegment(Vector(30, -3, 0), Vector(30, -6, 0)), False)
sketch5.addGeometry(Part.LineSegment(Vector(30, -6, 0), Vector(0, -6, 0)), False)
sketch5.addGeometry(Part.LineSegment(Vector(0, 3, 0), Vector(0, 6, 0)), False)
sketch5.addGeometry(Part.LineSegment(Vector(0, 6, 0), Vector(30, 6, 0)), False)
sketch5.addGeometry(Part.LineSegment(Vector(30, 6, 0), Vector(30, 3, 0)), False)
sketch5.addGeometry(Part.LineSegment(Vector(30, 3, 0), Vector(0, 3, 0)), False)
sketch5.addConstraint(Sketcher.Constraint("Coincident", 0, 2, 1, 1))
sketch5.addConstraint(Sketcher.Constraint("Coincident", 1, 2, 2, 1))
sketch5.addConstraint(Sketcher.Constraint("Coincident", 2, 2, 3, 1))
sketch5.addConstraint(Sketcher.Constraint("Coincident", 3, 2, 0, 1))
sketch5.addConstraint(Sketcher.Constraint("Coincident", 4, 2, 5, 1))
sketch5.addConstraint(Sketcher.Constraint("Coincident", 5, 2, 6, 1))
sketch5.addConstraint(Sketcher.Constraint("Coincident", 6, 2, 7, 1))
sketch5.addConstraint(Sketcher.Constraint("Coincident", 7, 2, 4, 1))
sketch5.addConstraint(Sketcher.Constraint("Vertical", 0))
sketch5.addConstraint(Sketcher.Constraint("Horizontal", 1))
sketch5.addConstraint(Sketcher.Constraint("Vertical", 2))
sketch5.addConstraint(Sketcher.Constraint("Horizontal", 3))
sketch5.addConstraint(Sketcher.Constraint("Vertical", 4))
sketch5.addConstraint(Sketcher.Constraint("Horizontal", 5))
sketch5.addConstraint(Sketcher.Constraint("Vertical", 6))
sketch5.addConstraint(Sketcher.Constraint("Horizontal", 7))
sketch5.addConstraint(Sketcher.Constraint("Symmetric", 3, 2, 4, 2, -1, 1))
sketch5.addConstraint(Sketcher.Constraint("Symmetric", 1, 2, 6, 2, -1))
sketch5.addConstraint(Sketcher.Constraint("PointOnObject", 0, 2, -2))
sketch5.addConstraint(Sketcher.Constraint("DistanceX", 1, 1, 1, 2, Q("30 mm")))
sketch5.addConstraint(Sketcher.Constraint("DistanceY", 0, 1, 0, 2, Q("3 mm")))
sketch5.addConstraint(Sketcher.Constraint("DistanceY", 0, 2, -1, 1, Q("3 mm")))
sketch5.setExpression("Constraints[19]", "Params.sketch5_width")
sketch5.setExpression("Constraints[20]", "Params.sketch5_height")
pocket4 = body.newObject("PartDesign::Pocket", "Pocket003")
pocket4.Profile = sketch5
pocket4.setExpression("Length", "Params.pocket4_length")
pocket4.Reversed = True

# Sketch on YZ plane
sketch6 = body.newObject("Sketcher::SketchObject", "Sketch005")
sketch6.AttachmentSupport = (doc.getObject("YZ_Plane"), [""])
sketch6.MapMode = "FlatFace"
sketch6.AttachmentOffset = App.Placement(Vector(0, 0, 18.5), App.Rotation())
sketch6.addGeometry(Part.ArcOfCircle(Part.Circle(Vector(-6, -20, 0), Vector(0, 0, 1), 6.1), math.radians(-132), math.radians(-29)), False)
sketch6.addGeometry(Part.LineSegment(Vector(-0.6, -23, 0), Vector(1, -23, 0)), False)
sketch6.addGeometry(Part.LineSegment(Vector(1, -23, 0), Vector(1, -17, 0)), False)
sketch6.addGeometry(Part.LineSegment(Vector(1, -17, 0), Vector(-0.6, -17, 0)), False)
sketch6.addGeometry(Part.ArcOfCircle(Part.Circle(Vector(-6, -20, 0), Vector(0, 0, 1), 6.1), math.radians(29), math.radians(132)), False)
sketch6.addGeometry(Part.LineSegment(Vector(-10.1, -15.4, 0), Vector(-13.5, -18.5, 0)), False)
sketch6.addGeometry(Part.LineSegment(Vector(-13.5, -18.5, 0), Vector(-13.5, -21.5, 0)), False)
sketch6.addGeometry(Part.LineSegment(Vector(-13.5, -21.5, 0), Vector(-10.1, -24.6, 0)), False)
sketch6.addConstraint(Sketcher.Constraint("Coincident", 0, 2, 1, 1))
sketch6.addConstraint(Sketcher.Constraint("Coincident", 1, 2, 2, 1))
sketch6.addConstraint(Sketcher.Constraint("Coincident", 2, 2, 3, 1))
sketch6.addConstraint(Sketcher.Constraint("Coincident", 3, 2, 4, 1))
sketch6.addConstraint(Sketcher.Constraint("Tangent", 4, 2, 5, 1))
sketch6.addConstraint(Sketcher.Constraint("Coincident", 5, 2, 6, 1))
sketch6.addConstraint(Sketcher.Constraint("Coincident", 6, 2, 7, 1))
sketch6.addConstraint(Sketcher.Constraint("Tangent", 7, 2, 0, 1))
sketch6.addConstraint(Sketcher.Constraint("Horizontal", 1))
sketch6.addConstraint(Sketcher.Constraint("Vertical", 2))
sketch6.addConstraint(Sketcher.Constraint("Horizontal", 3))
sketch6.addConstraint(Sketcher.Constraint("Vertical", 6))
sketch6.addConstraint(Sketcher.Constraint("Coincident", 4, 3, 0, 3))
sketch6.addConstraint(Sketcher.Constraint("Equal", 0, 4))
sketch6.addConstraint(Sketcher.Constraint("Vertical", 0, 2, 3, 2))
sketch6.addConstraint(Sketcher.Constraint("Vertical", 4, 2, 7, 2))
sketch6.addConstraint(Sketcher.Constraint("DistanceY", 2, 1, 2, 2, Q("6 mm")))
sketch6.addConstraint(Sketcher.Constraint("DistanceY", 6, 2, 6, 1, Q("3 mm")))
sketch6.addConstraint(Sketcher.Constraint("Radius", 0, Q("6.149999 mm")))
sketch6.addConstraint(Sketcher.Constraint("DistanceX", 0, 3, -1, 1, Q("6 mm")))
sketch6.addConstraint(Sketcher.Constraint("DistanceY", 0, 3, -1, 1, Q("20.000001 mm")))
sketch6.addConstraint(Sketcher.Constraint("DistanceX", -1, 1, 1, 2, Q("1 mm")))
sketch6.addConstraint(Sketcher.Constraint("DistanceX", 5, 2, -1, 1, Q("13.5 mm")))
sketch6.setExpression("Constraints[16]", "Params.sketch6_height")
sketch6.setExpression("Constraints[17]", "Params.sketch6_height2")
sketch6.setExpression("Constraints[18]", "Params.sketch6_radius")
pocket5 = body.newObject("PartDesign::Pocket", "Pocket004")
pocket5.Profile = sketch6
pocket5.setExpression("Length", "Params.pocket5_length")

# Sketch on XY plane
sketch7 = body.newObject("Sketcher::SketchObject", "Sketch006")
sketch7.AttachmentSupport = (doc.getObject("XY_Plane"), [""])
sketch7.MapMode = "FlatFace"
sketch7.AttachmentOffset = App.Placement(Vector(0, 0, -41), App.Rotation())
sketch7.addGeometry(Part.LineSegment(Vector(30, -12, 0), Vector(24, 0, 0)), False)
sketch7.addGeometry(Part.LineSegment(Vector(24, 0, 0), Vector(30, 0, 0)), False)
sketch7.addGeometry(Part.LineSegment(Vector(30, 0, 0), Vector(30, -12, 0)), False)
sketch7.addConstraint(Sketcher.Constraint("Coincident", 0, 2, 1, 1))
sketch7.addConstraint(Sketcher.Constraint("Coincident", 1, 2, 2, 1))
sketch7.addConstraint(Sketcher.Constraint("Coincident", 2, 2, 0, 1))
sketch7.addConstraint(Sketcher.Constraint("Horizontal", 1))
sketch7.addConstraint(Sketcher.Constraint("Vertical", 2))
sketch7.addConstraint(Sketcher.Constraint("PointOnObject", 0, 2, -1))
sketch7.addConstraint(Sketcher.Constraint("DistanceX", 1, 1, 1, 2, Q("6 mm")))
sketch7.addConstraint(Sketcher.Constraint("DistanceY", 2, 2, 2, 1, Q("12.5 mm")))
sketch7.addConstraint(Sketcher.Constraint("DistanceX", -1, 1, 0, 2, Q("24.5 mm")))
sketch7.setExpression("Constraints[6]", "Params.sketch7_width")
sketch7.setExpression("Constraints[7]", "Params.sketch7_height")
pocket6 = body.newObject("PartDesign::Pocket", "Pocket005")
pocket6.Profile = sketch7
pocket6.setExpression("Length", "Params.pocket6_length")
pocket6.Reversed = True

# Sketch on YZ plane
sketch8 = body.newObject("Sketcher::SketchObject", "Sketch007")
sketch8.AttachmentSupport = (doc.getObject("YZ_Plane"), [""])
sketch8.MapMode = "FlatFace"
sketch8.AttachmentOffset = App.Placement(Vector(0, 0, 30.5), App.Rotation())
sketch8.addGeometry(Part.LineSegment(Vector(-21, -37, 0), Vector(-9, -37, 0)), False)
sketch8.addGeometry(Part.LineSegment(Vector(-9, -37, 0), Vector(-5, -35, 0)), False)
sketch8.addGeometry(Part.LineSegment(Vector(-5, -35, 0), Vector(-21, -35, 0)), False)
sketch8.addGeometry(Part.LineSegment(Vector(-21, -35, 0), Vector(-21, -37, 0)), False)
sketch8.addConstraint(Sketcher.Constraint("Coincident", 0, 2, 1, 1))
sketch8.addConstraint(Sketcher.Constraint("Coincident", 1, 2, 2, 1))
sketch8.addConstraint(Sketcher.Constraint("Coincident", 2, 2, 3, 1))
sketch8.addConstraint(Sketcher.Constraint("Coincident", 3, 2, 0, 1))
sketch8.addConstraint(Sketcher.Constraint("Horizontal", 0))
sketch8.addConstraint(Sketcher.Constraint("Horizontal", 2))
sketch8.addConstraint(Sketcher.Constraint("Vertical", 3))
sketch8.addConstraint(Sketcher.Constraint("DistanceX", 0, 1, 0, 2, Q("12 mm")))
sketch8.addConstraint(Sketcher.Constraint("DistanceX", 2, 2, 2, 1, Q("16 mm")))
sketch8.addConstraint(Sketcher.Constraint("DistanceY", 3, 2, 3, 1, Q("2 mm")))
sketch8.addConstraint(Sketcher.Constraint("DistanceX", 0, 2, -1, 1, Q("9 mm")))
sketch8.addConstraint(Sketcher.Constraint("DistanceY", 0, 2, -1, 1, Q("37 mm")))
sketch8.setExpression("Constraints[7]", "Params.sketch8_width")
sketch8.setExpression("Constraints[8]", "Params.sketch8_width2")
sketch8.setExpression("Constraints[9]", "Params.sketch8_height")
pocket7 = body.newObject("PartDesign::Pocket", "Pocket006")
pocket7.Profile = sketch8
pocket7.setExpression("Length", "Params.pocket7_length")

# Sketch on XY plane
sketch9 = body.newObject("Sketcher::SketchObject", "Sketch008")
sketch9.AttachmentSupport = (doc.getObject("XY_Plane"), [""])
sketch9.MapMode = "FlatFace"
sketch9.AttachmentOffset = App.Placement(Vector(0, 0, 10), App.Rotation())
sketch9.addGeometry(Part.LineSegment(Vector(19, 0, 0), Vector(24, -6, 0)), False)
sketch9.addGeometry(Part.LineSegment(Vector(24, -6, 0), Vector(24, 0, 0)), False)
sketch9.addGeometry(Part.LineSegment(Vector(24, 0, 0), Vector(19, 0, 0)), False)
sketch9.addConstraint(Sketcher.Constraint("Coincident", 0, 2, 1, 1))
sketch9.addConstraint(Sketcher.Constraint("Coincident", 1, 2, 2, 1))
sketch9.addConstraint(Sketcher.Constraint("Coincident", 2, 2, 0, 1))
sketch9.addConstraint(Sketcher.Constraint("Vertical", 1))
sketch9.addConstraint(Sketcher.Constraint("Horizontal", 2))
sketch9.addConstraint(Sketcher.Constraint("PointOnObject", 1, 2, -1))
sketch9.addConstraint(Sketcher.Constraint("Equal", 2, 1))
sketch9.addConstraint(Sketcher.Constraint("DistanceX", 2, 2, 2, 1, Q("5.5 mm")))
sketch9.addConstraint(Sketcher.Constraint("DistanceX", -1, 1, 2, 2, Q("19 mm")))
sketch9.setExpression("Constraints[7]", "Params.sketch9_width")
pocket8 = body.newObject("PartDesign::Pocket", "Pocket007")
pocket8.Profile = sketch9
pocket8.setExpression("Length", "Params.pocket8_length")
pocket8.Reversed = True

doc.recompute()
